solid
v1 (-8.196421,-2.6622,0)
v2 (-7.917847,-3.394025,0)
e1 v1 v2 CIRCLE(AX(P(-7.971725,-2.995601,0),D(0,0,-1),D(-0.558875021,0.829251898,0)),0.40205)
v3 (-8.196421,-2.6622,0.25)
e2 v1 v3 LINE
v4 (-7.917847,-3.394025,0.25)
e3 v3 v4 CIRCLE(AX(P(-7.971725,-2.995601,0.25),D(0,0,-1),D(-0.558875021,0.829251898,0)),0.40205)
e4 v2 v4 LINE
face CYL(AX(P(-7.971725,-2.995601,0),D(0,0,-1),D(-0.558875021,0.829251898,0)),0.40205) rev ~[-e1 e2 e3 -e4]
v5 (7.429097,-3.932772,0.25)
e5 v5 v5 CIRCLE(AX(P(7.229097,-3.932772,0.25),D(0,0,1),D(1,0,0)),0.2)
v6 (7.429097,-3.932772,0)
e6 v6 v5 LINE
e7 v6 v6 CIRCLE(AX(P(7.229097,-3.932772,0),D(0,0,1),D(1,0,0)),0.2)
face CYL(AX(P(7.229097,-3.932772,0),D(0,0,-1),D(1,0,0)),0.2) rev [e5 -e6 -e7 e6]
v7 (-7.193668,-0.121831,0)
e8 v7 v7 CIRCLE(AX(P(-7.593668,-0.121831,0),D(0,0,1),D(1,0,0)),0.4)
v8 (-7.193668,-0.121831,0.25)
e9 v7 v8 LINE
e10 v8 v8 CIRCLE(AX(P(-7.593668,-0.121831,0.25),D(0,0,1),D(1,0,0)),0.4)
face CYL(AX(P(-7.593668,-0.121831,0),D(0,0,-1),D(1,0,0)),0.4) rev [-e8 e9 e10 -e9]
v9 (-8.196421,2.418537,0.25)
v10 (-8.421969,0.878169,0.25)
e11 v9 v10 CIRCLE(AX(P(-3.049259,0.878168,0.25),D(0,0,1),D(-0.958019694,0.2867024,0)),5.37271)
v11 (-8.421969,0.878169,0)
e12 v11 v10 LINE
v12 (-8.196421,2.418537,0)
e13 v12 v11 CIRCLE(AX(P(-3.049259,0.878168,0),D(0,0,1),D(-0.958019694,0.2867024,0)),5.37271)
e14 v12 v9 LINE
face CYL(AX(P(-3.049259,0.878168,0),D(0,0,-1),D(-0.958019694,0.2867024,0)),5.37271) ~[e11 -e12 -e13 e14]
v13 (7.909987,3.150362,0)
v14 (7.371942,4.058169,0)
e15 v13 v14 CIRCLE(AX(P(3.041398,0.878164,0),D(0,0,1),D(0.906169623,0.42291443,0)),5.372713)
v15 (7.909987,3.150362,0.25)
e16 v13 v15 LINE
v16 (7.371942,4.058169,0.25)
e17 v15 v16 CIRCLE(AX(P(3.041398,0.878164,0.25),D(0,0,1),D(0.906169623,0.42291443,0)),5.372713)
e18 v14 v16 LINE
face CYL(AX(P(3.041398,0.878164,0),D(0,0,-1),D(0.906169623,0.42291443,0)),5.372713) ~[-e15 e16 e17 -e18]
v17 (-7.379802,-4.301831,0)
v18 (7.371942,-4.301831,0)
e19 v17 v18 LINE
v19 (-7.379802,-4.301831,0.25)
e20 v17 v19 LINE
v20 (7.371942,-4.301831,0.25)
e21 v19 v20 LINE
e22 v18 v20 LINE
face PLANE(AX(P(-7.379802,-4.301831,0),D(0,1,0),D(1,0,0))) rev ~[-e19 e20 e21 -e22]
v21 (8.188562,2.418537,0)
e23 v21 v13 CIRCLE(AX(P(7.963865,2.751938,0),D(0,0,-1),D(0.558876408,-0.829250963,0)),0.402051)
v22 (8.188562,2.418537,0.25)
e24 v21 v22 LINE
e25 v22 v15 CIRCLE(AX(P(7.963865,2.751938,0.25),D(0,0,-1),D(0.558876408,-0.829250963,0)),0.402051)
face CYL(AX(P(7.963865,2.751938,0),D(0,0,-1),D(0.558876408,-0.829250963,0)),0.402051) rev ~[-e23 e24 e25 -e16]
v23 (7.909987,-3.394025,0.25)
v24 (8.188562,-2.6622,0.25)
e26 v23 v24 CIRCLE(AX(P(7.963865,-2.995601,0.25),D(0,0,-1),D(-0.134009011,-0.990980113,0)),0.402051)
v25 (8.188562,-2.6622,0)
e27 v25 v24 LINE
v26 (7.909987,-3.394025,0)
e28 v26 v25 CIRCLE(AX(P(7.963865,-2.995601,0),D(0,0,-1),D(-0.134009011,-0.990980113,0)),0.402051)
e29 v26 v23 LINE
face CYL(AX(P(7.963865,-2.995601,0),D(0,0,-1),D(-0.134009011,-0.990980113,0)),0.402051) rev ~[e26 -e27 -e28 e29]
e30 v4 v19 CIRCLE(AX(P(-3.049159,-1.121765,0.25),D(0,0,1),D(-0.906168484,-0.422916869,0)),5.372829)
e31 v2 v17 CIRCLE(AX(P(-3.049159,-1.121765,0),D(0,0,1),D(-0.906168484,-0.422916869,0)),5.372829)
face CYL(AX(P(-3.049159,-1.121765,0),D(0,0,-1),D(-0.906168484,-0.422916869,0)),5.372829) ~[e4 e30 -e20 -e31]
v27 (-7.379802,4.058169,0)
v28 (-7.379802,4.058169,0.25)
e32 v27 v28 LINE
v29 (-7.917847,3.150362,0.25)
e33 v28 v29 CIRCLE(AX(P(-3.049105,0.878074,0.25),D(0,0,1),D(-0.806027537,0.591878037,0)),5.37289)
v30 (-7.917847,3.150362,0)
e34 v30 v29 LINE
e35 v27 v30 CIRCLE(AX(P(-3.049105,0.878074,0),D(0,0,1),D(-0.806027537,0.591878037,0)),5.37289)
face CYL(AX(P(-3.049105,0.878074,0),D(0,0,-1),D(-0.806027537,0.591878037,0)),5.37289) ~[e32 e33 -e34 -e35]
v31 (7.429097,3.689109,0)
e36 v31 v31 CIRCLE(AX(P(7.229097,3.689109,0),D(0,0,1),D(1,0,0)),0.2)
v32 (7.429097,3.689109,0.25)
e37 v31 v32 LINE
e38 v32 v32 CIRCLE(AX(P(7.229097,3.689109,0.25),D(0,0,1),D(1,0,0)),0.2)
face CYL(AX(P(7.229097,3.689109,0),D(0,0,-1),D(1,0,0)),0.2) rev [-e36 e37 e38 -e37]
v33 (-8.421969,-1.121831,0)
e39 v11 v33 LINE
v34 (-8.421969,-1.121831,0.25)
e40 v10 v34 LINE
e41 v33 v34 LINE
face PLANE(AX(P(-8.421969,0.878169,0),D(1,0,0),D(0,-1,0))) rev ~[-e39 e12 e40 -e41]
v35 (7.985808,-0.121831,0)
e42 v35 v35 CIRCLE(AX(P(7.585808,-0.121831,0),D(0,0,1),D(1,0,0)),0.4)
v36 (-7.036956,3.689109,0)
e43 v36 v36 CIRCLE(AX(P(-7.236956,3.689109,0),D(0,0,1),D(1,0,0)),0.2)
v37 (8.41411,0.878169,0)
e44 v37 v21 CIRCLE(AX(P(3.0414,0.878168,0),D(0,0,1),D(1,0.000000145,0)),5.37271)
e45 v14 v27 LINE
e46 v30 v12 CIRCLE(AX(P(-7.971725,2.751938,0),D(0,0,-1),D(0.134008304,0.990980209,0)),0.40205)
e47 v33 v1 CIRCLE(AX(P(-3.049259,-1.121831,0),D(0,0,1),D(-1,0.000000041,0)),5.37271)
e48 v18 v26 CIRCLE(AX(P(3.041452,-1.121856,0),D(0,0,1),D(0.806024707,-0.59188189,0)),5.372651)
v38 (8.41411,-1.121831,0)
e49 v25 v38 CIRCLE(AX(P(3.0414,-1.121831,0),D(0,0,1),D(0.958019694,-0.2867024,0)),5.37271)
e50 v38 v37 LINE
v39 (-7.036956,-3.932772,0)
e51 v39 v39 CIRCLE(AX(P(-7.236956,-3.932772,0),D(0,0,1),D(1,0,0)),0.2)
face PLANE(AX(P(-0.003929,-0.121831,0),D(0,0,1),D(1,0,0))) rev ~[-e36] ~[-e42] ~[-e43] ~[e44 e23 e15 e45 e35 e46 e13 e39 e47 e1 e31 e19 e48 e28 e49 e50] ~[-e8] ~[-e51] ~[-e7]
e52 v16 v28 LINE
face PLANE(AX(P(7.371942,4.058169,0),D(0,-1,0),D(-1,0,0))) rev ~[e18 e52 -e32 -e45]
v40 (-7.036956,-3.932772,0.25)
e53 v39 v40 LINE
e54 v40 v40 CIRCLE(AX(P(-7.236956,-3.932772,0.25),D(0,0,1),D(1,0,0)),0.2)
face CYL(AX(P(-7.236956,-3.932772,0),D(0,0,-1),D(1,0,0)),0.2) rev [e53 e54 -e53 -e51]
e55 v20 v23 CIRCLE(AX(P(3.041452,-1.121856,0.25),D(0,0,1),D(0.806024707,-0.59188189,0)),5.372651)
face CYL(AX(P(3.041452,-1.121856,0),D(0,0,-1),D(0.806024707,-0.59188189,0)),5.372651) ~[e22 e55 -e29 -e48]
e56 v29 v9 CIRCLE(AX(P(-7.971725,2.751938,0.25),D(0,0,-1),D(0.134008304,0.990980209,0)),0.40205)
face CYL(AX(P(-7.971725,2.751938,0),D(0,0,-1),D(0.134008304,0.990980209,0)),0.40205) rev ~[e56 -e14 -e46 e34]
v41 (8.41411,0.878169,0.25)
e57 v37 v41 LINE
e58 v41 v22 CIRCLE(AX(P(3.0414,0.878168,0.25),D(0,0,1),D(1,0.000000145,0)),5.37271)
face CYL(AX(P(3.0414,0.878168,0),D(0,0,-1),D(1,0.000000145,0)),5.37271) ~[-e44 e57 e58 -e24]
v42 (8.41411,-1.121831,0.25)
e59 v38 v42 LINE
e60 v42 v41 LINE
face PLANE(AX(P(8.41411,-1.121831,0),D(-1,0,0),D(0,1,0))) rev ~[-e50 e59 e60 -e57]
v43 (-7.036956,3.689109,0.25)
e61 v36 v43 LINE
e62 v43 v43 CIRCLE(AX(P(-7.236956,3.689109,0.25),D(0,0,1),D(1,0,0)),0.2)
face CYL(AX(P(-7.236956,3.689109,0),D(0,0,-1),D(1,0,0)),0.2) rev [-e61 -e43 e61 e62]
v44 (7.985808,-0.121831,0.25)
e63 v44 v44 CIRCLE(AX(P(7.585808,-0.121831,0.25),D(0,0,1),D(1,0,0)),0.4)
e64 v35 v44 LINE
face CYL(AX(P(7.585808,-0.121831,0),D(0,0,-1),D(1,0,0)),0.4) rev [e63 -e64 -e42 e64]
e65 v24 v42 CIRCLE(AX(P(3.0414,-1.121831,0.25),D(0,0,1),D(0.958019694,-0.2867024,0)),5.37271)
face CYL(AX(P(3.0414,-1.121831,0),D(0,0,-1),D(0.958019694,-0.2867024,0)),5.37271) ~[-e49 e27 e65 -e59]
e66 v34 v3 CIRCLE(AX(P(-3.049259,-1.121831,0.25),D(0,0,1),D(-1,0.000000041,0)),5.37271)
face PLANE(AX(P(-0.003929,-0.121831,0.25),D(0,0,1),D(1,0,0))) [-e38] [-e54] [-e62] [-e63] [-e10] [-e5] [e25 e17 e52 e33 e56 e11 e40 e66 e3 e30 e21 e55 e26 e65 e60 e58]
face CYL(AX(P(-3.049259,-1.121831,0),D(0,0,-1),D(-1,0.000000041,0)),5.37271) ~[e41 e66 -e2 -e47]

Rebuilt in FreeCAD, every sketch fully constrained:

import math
import FreeCAD as App
import Part
import Sketcher
Q = App.Units.Quantity

doc = App.newDocument("Part")
body = doc.addObject("PartDesign::Body", "Body")

# Sketch on XY plane
sketch1 = body.newObject("Sketcher::SketchObject", "Sketch")
sketch1.AttachmentSupport = (doc.getObject("XY_Plane"), [""])
sketch1.MapMode = "FlatFace"
sketch1.addGeometry([
    Part.LineSegment(App.Vector(7.37, 4.06, 0), App.Vector(-7.38, 4.06, 0)),  # 0
    Part.ArcOfCircle(Part.Circle(App.Vector(-3.05, 0.88, 0), App.Vector(0, 0, 1), 5.37), math.radians(143.71), math.radians(154.98)),  # 1
    Part.ArcOfCircle(Part.Circle(App.Vector(-7.97, 2.75, 0), App.Vector(0, 0, 1), 0.4), math.radians(-124), math.radians(82)),  # 2
    Part.ArcOfCircle(Part.Circle(App.Vector(-3.05, 0.88, 0), App.Vector(0, 0, 1), 5.37), math.radians(163.34), math.radians(180)),  # 3
    Part.LineSegment(App.Vector(-8.42, 0.88, 0), App.Vector(-8.42, -1.12, 0)),  # 4
    Part.ArcOfCircle(Part.Circle(App.Vector(-3.05, -1.12, 0), App.Vector(0, 0, 1), 5.37), math.radians(180), math.radians(196.66)),  # 5
    Part.ArcOfCircle(Part.Circle(App.Vector(-7.97, -3, 0), App.Vector(0, 0, 1), 0.4), math.radians(-82), math.radians(124)),  # 6
    Part.ArcOfCircle(Part.Circle(App.Vector(-3.05, -1.12, 0), App.Vector(0, 0, 1), 5.37), math.radians(-154.98), math.radians(-143.71)),  # 7
    Part.LineSegment(App.Vector(-7.38, -4.3, 0), App.Vector(7.37, -4.3, 0)),  # 8
    Part.ArcOfCircle(Part.Circle(App.Vector(3.04, -1.12, 0), App.Vector(0, 0, 1), 5.37), math.radians(-36.29), math.radians(-25.02)),  # 9
    Part.ArcOfCircle(Part.Circle(App.Vector(7.96, -3, 0), App.Vector(0, 0, 1), 0.4), math.radians(56), math.radians(262)),  # 10
    Part.ArcOfCircle(Part.Circle(App.Vector(3.04, -1.12, 0), App.Vector(0, 0, 1), 5.37), math.radians(-16.66), math.radians(0)),  # 11
    Part.LineSegment(App.Vector(8.41, -1.12, 0), App.Vector(8.41, 0.88, 0)),  # 12
    Part.ArcOfCircle(Part.Circle(App.Vector(3.04, 0.88, 0), App.Vector(0, 0, 1), 5.37), math.radians(0), math.radians(16.66)),  # 13
    Part.ArcOfCircle(Part.Circle(App.Vector(7.96, 2.75, 0), App.Vector(0, 0, 1), 0.4), math.radians(98), math.radians(304)),  # 14
    Part.ArcOfCircle(Part.Circle(App.Vector(3.04, 0.88, 0), App.Vector(0, 0, 1), 5.37), math.radians(25.02), math.radians(36.29)),  # 15
    Part.Circle(App.Vector(-7.24, -3.93, 0), App.Vector(0, 0, 1), 0.2),  # 16
    Part.Circle(App.Vector(7.23, -3.93, 0), App.Vector(0, 0, 1), 0.2),  # 17
    Part.Circle(App.Vector(-7.59, -0.12, 0), App.Vector(0, 0, 1), 0.4),  # 18
    Part.Circle(App.Vector(-7.24, 3.69, 0), App.Vector(0, 0, 1), 0.2),  # 19
    Part.Circle(App.Vector(7.59, -0.12, 0), App.Vector(0, 0, 1), 0.4),  # 20
    Part.Circle(App.Vector(7.23, 3.69, 0), App.Vector(0, 0, 1), 0.2),  # 21
], False)
sketch1.addConstraint([
    Sketcher.Constraint("Coincident", 0, 2, 1, 1),
    Sketcher.Constraint("Coincident", 1, 2, 2, 2),
    Sketcher.Constraint("Coincident", 2, 1, 3, 1),
    Sketcher.Constraint("Tangent", 3, 2, 4, 1),
    Sketcher.Constraint("Tangent", 4, 2, 5, 1),
    Sketcher.Constraint("Coincident", 5, 2, 6, 2),
    Sketcher.Constraint("Coincident", 6, 1, 7, 1),
    Sketcher.Constraint("Coincident", 7, 2, 8, 1),
    Sketcher.Constraint("Coincident", 8, 2, 9, 1),
    Sketcher.Constraint("Coincident", 9, 2, 10, 2),
    Sketcher.Constraint("Coincident", 10, 1, 11, 1),
    Sketcher.Constraint("Tangent", 11, 2, 12, 1),
    Sketcher.Constraint("Tangent", 12, 2, 13, 1),
    Sketcher.Constraint("Coincident", 13, 2, 14, 2),
    Sketcher.Constraint("Coincident", 14, 1, 15, 1),
    Sketcher.Constraint("Coincident", 15, 2, 0, 1),
    Sketcher.Constraint("Horizontal", 0),
    Sketcher.Constraint("Vertical", 4),
    Sketcher.Constraint("Horizontal", 8),
    Sketcher.Constraint("Vertical", 12),
    Sketcher.Constraint("Coincident", 15, 3, 13, 3),
    Sketcher.Constraint("Equal", 3, 5),
    Sketcher.Constraint("Equal", 2, 6),
    Sketcher.Constraint("Equal", 6, 10),
    Sketcher.Constraint("Equal", 5, 11),
    Sketcher.Constraint("Equal", 11, 13),
    Sketcher.Constraint("Equal", 10, 14),
    Sketcher.Constraint("Equal", 16, 17),
    Sketcher.Constraint("Equal", 17, 19),
    Sketcher.Constraint("Equal", 18, 20),
    Sketcher.Constraint("Equal", 19, 21),
    Sketcher.Constraint("Horizontal", 6, 3, 10, 3),
    Sketcher.Constraint("Horizontal", 5, 3, 11, 3),
    Sketcher.Constraint("Horizontal", 3, 3, 13, 3),
    Sketcher.Constraint("Horizontal", 2, 3, 14, 3),
    Sketcher.Constraint("Horizontal", 16, 3, 17, 3),
    Sketcher.Constraint("Horizontal", 18, 3, 20, 3),
    Sketcher.Constraint("Horizontal", 19, 3, 21, 3),
    Sketcher.Constraint("Horizontal", 6, 1, 9, 2),
    Sketcher.Constraint("Horizontal", 5, 2, 10, 1),
    Sketcher.Constraint("Horizontal", 2, 1, 13, 2),
    Sketcher.Constraint("Horizontal", 1, 2, 14, 1),
    Sketcher.Constraint("Vertical", 2, 3, 6, 3),
    Sketcher.Constraint("Vertical", 16, 3, 19, 3),
    Sketcher.Constraint("Vertical", 17, 3, 21, 3),
    Sketcher.Constraint("Vertical", 2, 1, 5, 2),
    Sketcher.Constraint("Vertical", 1, 2, 6, 1),
    Sketcher.Constraint("Vertical", 0, 2, 7, 2),
    Sketcher.Constraint("Vertical", 8, 2, 15, 2),
    Sketcher.Constraint("Diameter", 16, Q("0.4 mm")),
    Sketcher.Constraint("Diameter", 18, Q("0.8 mm")),
    Sketcher.Constraint("DistanceY", 4, 2, 4, 1, Q("2 mm")),
    Sketcher.Constraint("DistanceY", 18, 3, 3, 3, Q("0.999999 mm")),
    Sketcher.Constraint("Radius", 1, Q("5.37289 mm")),
    Sketcher.Constraint("Radius", 2, Q("0.40205 mm")),
    Sketcher.Constraint("Radius", 3, Q("5.37271 mm")),
    Sketcher.Constraint("Radius", 7, Q("5.372829 mm")),
    Sketcher.Constraint("Radius", 9, Q("5.372651 mm")),
    Sketcher.Constraint("DistanceY", 18, 3, 0, 2, Q("4.18 mm")),
    Sketcher.Constraint("DistanceY", 7, 2, 4, 2, Q("3.18 mm")),
    Sketcher.Constraint("Radius", 15, Q("5.372713 mm")),
    Sketcher.Constraint("DistanceY", 6, 3, -1, 1, Q("2.995601 mm")),
    Sketcher.Constraint("DistanceX", -1, 1, 11, 3, Q("3.0414 mm")),
    Sketcher.Constraint("DistanceX", 0, 2, -1, 1, Q("7.379802 mm")),
    Sketcher.Constraint("DistanceY", 5, 2, -1, 1, Q("2.6622 mm")),
    Sketcher.Constraint("DistanceX", 5, 3, 7, 3, Q("0.0001 mm")),
    Sketcher.Constraint("DistanceX", 15, 3, 17, 3, Q("4.187699 mm")),
    Sketcher.Constraint("DistanceX", 3, 2, 18, 3, Q("0.828301 mm")),
    Sketcher.Constraint("DistanceX", 20, 3, 11, 2, Q("0.828302 mm")),
    Sketcher.Constraint("DistanceY", -1, 1, 2, 3, Q("2.751938 mm")),
    Sketcher.Constraint("DistanceY", 16, 3, -1, 1, Q("3.932772 mm")),
    Sketcher.Constraint("DistanceY", -1, 1, 19, 3, Q("3.689109 mm")),
    Sketcher.Constraint("DistanceX", 6, 3, 16, 3, Q("0.734769 mm")),
])
pad1 = body.newObject("PartDesign::Pad", "Pad")
pad1.Profile = sketch1
pad1.Length = 0.25

doc.recompute()
